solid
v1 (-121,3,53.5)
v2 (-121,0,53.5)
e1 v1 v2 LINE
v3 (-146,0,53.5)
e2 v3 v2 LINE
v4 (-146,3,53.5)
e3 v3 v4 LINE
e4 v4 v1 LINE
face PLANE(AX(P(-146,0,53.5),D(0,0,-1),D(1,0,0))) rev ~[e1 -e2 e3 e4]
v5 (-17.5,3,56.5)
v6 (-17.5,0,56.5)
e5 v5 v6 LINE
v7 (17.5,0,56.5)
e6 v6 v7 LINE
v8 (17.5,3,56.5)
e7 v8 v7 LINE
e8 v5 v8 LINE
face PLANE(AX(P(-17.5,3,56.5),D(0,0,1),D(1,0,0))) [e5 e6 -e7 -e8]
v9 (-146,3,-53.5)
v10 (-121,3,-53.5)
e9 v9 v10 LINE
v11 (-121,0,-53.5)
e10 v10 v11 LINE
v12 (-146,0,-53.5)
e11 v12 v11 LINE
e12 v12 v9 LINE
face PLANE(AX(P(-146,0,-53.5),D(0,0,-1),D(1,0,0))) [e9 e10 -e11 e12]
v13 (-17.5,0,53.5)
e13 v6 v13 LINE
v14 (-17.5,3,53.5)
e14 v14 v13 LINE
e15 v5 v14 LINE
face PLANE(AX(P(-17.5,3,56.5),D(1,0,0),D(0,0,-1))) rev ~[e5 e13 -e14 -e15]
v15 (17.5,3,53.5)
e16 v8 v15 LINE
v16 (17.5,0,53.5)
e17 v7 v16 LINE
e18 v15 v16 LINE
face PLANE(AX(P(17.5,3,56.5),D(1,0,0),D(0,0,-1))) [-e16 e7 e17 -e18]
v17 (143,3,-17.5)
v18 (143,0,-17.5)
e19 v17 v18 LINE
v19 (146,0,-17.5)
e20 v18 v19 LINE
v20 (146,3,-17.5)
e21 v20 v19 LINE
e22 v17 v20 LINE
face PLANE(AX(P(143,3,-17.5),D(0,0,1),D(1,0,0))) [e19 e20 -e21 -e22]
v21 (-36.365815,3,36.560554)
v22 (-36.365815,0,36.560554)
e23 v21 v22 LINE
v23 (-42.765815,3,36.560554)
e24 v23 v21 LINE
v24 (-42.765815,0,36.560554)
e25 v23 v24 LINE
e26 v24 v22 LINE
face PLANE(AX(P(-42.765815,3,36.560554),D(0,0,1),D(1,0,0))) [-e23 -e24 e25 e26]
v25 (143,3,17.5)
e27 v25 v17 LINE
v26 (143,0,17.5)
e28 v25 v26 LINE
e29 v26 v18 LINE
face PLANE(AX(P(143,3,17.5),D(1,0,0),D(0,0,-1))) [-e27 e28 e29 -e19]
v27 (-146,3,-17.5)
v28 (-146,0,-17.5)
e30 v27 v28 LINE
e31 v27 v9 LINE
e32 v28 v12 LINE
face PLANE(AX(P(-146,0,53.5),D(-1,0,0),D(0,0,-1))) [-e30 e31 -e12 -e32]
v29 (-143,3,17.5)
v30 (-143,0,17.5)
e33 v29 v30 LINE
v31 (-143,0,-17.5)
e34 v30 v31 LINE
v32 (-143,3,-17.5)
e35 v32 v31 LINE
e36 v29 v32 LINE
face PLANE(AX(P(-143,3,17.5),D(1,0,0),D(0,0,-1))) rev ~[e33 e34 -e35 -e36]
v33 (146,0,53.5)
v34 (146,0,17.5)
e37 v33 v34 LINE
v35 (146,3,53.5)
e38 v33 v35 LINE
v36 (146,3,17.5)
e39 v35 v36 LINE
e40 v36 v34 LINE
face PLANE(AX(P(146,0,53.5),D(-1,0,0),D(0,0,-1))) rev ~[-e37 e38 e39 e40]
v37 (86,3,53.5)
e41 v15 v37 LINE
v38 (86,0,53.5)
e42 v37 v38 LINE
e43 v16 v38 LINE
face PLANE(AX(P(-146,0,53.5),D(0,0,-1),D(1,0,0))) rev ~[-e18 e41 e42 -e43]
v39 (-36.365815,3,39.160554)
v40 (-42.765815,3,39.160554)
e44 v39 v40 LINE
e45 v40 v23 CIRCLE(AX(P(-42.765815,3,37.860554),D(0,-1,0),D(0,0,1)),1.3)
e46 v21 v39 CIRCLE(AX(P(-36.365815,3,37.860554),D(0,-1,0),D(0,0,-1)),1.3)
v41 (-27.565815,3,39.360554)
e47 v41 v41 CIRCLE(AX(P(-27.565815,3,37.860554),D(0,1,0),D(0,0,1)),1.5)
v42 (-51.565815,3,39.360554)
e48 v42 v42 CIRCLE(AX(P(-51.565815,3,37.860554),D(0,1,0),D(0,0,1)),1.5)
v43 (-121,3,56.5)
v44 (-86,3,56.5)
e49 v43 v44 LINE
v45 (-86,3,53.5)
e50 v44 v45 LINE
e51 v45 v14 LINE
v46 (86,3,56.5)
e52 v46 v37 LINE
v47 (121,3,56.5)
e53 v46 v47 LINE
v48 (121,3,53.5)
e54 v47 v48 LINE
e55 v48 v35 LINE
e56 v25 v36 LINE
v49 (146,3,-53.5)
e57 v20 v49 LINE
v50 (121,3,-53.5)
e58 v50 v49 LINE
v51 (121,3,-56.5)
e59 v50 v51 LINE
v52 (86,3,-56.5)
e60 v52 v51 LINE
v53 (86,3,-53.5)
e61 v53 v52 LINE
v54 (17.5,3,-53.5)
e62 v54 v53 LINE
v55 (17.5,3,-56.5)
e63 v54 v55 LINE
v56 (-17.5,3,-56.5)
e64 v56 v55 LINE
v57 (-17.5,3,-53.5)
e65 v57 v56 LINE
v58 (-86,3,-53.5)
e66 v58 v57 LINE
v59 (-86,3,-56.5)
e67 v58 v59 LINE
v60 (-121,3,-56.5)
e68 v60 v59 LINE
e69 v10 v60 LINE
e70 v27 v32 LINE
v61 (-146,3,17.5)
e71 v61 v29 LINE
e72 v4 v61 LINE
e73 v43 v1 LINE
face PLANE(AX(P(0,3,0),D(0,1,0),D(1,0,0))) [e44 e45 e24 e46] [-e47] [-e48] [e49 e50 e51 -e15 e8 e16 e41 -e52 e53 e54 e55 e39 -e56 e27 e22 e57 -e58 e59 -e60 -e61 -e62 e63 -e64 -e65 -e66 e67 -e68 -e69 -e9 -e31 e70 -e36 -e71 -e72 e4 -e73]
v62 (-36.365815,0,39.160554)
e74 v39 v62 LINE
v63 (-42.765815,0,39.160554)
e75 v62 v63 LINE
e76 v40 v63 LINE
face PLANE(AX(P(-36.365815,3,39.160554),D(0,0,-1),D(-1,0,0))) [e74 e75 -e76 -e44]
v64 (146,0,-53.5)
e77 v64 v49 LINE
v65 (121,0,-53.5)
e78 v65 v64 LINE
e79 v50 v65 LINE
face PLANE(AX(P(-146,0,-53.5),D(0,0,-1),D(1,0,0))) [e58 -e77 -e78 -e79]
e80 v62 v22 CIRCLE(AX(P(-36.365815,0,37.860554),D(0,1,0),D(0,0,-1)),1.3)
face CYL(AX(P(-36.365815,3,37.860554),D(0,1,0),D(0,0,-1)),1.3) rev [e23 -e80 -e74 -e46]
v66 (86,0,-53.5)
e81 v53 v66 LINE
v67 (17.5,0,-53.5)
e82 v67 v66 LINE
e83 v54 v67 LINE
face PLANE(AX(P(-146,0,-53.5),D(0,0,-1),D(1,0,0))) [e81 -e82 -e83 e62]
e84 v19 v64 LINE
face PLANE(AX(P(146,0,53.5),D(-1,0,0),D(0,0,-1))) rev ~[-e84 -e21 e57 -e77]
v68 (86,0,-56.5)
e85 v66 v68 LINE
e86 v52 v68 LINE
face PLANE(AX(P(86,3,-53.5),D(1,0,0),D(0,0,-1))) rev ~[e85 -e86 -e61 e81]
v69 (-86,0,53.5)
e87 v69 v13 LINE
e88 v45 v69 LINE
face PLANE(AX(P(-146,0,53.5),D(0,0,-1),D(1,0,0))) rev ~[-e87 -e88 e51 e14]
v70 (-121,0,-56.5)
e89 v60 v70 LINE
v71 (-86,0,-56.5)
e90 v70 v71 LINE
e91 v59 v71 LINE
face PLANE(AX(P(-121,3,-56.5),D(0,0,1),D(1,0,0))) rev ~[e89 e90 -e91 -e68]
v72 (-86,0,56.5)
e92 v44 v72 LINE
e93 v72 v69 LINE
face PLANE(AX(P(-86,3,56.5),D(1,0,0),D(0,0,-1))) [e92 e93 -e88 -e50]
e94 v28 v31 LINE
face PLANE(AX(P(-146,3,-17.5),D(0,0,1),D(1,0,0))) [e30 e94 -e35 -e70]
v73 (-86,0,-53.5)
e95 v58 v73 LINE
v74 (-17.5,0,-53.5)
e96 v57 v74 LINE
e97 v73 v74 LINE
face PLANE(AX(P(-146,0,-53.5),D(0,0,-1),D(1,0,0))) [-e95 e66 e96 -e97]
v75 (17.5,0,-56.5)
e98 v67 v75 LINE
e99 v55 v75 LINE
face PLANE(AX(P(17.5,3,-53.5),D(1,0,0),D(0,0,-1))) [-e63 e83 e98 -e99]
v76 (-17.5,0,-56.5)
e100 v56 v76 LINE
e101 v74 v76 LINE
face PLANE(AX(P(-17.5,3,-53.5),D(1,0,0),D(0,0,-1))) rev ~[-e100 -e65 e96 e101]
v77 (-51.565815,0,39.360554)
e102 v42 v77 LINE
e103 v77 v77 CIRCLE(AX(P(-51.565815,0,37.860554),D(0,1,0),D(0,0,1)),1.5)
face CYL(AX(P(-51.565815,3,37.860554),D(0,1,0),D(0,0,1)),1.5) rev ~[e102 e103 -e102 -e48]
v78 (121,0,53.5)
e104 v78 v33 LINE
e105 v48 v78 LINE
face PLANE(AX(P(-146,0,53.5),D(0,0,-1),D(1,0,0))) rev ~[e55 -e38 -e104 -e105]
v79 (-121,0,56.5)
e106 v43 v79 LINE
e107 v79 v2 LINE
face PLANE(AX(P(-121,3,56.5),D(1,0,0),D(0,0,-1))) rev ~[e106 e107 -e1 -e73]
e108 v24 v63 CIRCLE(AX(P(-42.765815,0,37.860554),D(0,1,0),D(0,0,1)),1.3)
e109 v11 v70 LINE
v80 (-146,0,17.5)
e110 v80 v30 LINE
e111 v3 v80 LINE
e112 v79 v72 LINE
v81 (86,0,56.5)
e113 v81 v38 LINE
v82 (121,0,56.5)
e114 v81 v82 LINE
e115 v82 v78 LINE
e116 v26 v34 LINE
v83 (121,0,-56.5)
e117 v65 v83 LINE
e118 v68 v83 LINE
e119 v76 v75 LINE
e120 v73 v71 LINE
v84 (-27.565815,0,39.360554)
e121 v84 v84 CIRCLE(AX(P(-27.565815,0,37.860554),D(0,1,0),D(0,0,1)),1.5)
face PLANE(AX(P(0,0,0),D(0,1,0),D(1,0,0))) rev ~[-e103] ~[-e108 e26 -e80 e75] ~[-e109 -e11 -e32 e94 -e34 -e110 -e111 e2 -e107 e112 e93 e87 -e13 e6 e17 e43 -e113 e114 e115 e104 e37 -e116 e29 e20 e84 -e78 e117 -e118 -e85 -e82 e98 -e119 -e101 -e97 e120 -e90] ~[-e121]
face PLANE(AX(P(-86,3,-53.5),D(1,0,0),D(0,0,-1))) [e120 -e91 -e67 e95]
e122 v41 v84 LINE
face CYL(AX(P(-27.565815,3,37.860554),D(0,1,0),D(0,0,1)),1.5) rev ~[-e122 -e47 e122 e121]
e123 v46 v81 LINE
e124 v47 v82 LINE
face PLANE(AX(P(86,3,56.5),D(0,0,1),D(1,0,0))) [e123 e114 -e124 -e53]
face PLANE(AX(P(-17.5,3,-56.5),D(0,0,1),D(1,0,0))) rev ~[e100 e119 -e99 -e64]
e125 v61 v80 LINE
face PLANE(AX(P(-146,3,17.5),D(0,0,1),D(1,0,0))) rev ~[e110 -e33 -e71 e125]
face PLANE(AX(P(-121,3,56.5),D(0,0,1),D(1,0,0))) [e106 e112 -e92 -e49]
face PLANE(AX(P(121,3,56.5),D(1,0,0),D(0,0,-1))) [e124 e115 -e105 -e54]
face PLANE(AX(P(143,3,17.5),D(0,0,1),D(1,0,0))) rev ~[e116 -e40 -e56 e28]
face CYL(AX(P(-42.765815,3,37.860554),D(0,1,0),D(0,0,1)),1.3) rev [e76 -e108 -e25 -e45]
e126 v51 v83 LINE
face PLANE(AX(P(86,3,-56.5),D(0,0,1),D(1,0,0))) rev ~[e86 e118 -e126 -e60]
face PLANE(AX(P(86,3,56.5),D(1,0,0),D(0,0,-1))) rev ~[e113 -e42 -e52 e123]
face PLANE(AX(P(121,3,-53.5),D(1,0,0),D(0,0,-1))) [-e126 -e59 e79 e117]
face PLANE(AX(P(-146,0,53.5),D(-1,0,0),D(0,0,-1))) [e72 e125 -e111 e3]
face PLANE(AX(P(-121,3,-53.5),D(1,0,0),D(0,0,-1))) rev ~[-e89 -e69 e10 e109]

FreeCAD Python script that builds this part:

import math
import FreeCAD as App
import Part
import Sketcher
from FreeCAD import Vector
Q = App.Units.Quantity

doc = App.newDocument("Part")
body = doc.addObject("PartDesign::Body", "Body")

# Sketch on XZ plane
sketch1 = body.newObject("Sketcher::SketchObject", "Sketch")
sketch1.AttachmentSupport = (doc.getObject("XZ_Plane"), [""])
sketch1.MapMode = "FlatFace"
sketch1.addGeometry(Part.LineSegment(Vector(-146, -54, 0), Vector(-146, 54, 0)), False)
sketch1.addGeometry(Part.LineSegment(Vector(-146, 54, 0), Vector(146, 54, 0)), False)
sketch1.addGeometry(Part.LineSegment(Vector(146, 54, 0), Vector(146, -54, 0)), False)
sketch1.addGeometry(Part.LineSegment(Vector(146, -54, 0), Vector(-146, -54, 0)), False)
sketch1.addConstraint(Sketcher.Constraint("Coincident", 0, 2, 1, 1))
sketch1.addConstraint(Sketcher.Constraint("Coincident", 1, 2, 2, 1))
sketch1.addConstraint(Sketcher.Constraint("Coincident", 2, 2, 3, 1))
sketch1.addConstraint(Sketcher.Constraint("Coincident", 3, 2, 0, 1))
sketch1.addConstraint(Sketcher.Constraint("Vertical", 0))
sketch1.addConstraint(Sketcher.Constraint("Horizontal", 1))
sketch1.addConstraint(Sketcher.Constraint("Vertical", 2))
sketch1.addConstraint(Sketcher.Constraint("Horizontal", 3))
sketch1.addConstraint(Sketcher.Constraint("Symmetric", 0, 2, 2, 2, -1, 1))
sketch1.addConstraint(Sketcher.Constraint("DistanceX", 1, 1, 1, 2, Q("292 mm")))
sketch1.addConstraint(Sketcher.Constraint("DistanceY", 0, 1, 0, 2, Q("107 mm")))
pad1 = body.newObject("PartDesign::Pad", "Pad")
pad1.Profile = sketch1
pad1.Length = 3
pad1.Reversed = True

# Sketch on XZ plane
sketch2 = body.newObject("Sketcher::SketchObject", "Sketch001")
sketch2.AttachmentSupport = (doc.getObject("XZ_Plane"), [""])
sketch2.MapMode = "FlatFace"
sketch2.AttachmentOffset = App.Placement(Vector(0, 0, -3), App.Rotation())
sketch2.addGeometry(Part.LineSegment(Vector(143, -17.5, 0), Vector(143, 17.5, 0)), False)
sketch2.addGeometry(Part.LineSegment(Vector(143, 17.5, 0), Vector(146, 17.5, 0)), False)
sketch2.addGeometry(Part.LineSegment(Vector(146, 17.5, 0), Vector(146, -17.5, 0)), False)
sketch2.addGeometry(Part.LineSegment(Vector(146, -17.5, 0), Vector(143, -17.5, 0)), False)
sketch2.addGeometry(Part.LineSegment(Vector(-146, -17.5, 0), Vector(-146, 17.5, 0)), False)
sketch2.addGeometry(Part.LineSegment(Vector(-146, 17.5, 0), Vector(-143, 17.5, 0)), False)
sketch2.addGeometry(Part.LineSegment(Vector(-143, 17.5, 0), Vector(-143, -17.5, 0)), False)
sketch2.addGeometry(Part.LineSegment(Vector(-143, -17.5, 0), Vector(-146, -17.5, 0)), False)
sketch2.addConstraint(Sketcher.Constraint("Coincident", 0, 2, 1, 1))
sketch2.addConstraint(Sketcher.Constraint("Coincident", 1, 2, 2, 1))
sketch2.addConstraint(Sketcher.Constraint("Coincident", 2, 2, 3, 1))
sketch2.addConstraint(Sketcher.Constraint("Coincident", 3, 2, 0, 1))
sketch2.addConstraint(Sketcher.Constraint("Coincident", 4, 2, 5, 1))
sketch2.addConstraint(Sketcher.Constraint("Coincident", 5, 2, 6, 1))
sketch2.addConstraint(Sketcher.Constraint("Coincident", 6, 2, 7, 1))
sketch2.addConstraint(Sketcher.Constraint("Coincident", 7, 2, 4, 1))
sketch2.addConstraint(Sketcher.Constraint("Vertical", 0))
sketch2.addConstraint(Sketcher.Constraint("Horizontal", 1))
sketch2.addConstraint(Sketcher.Constraint("Vertical", 2))
sketch2.addConstraint(Sketcher.Constraint("Horizontal", 3))
sketch2.addConstraint(Sketcher.Constraint("Vertical", 4))
sketch2.addConstraint(Sketcher.Constraint("Horizontal", 5))
sketch2.addConstraint(Sketcher.Constraint("Vertical", 6))
sketch2.addConstraint(Sketcher.Constraint("Horizontal", 7))
sketch2.addConstraint(Sketcher.Constraint("Symmetric", 2, 2, 4, 2, -1, 1))
sketch2.addConstraint(Sketcher.Constraint("Symmetric", 0, 2, 6, 2, -1, 1))
sketch2.addConstraint(Sketcher.Constraint("Horizontal", 1, 2, 4, 2))
sketch2.addConstraint(Sketcher.Constraint("DistanceX", 1, 1, 1, 2, Q("3 mm")))
sketch2.addConstraint(Sketcher.Constraint("DistanceY", 0, 1, 0, 2, Q("35 mm")))
sketch2.addConstraint(Sketcher.Constraint("DistanceX", -1, 1, 0, 2, Q("143 mm")))
pocket1 = body.newObject("PartDesign::Pocket", "Pocket")
pocket1.Profile = sketch2
pocket1.Length = 3
pocket1.Reversed = True

# Sketch on XZ plane
sketch3 = body.newObject("Sketcher::SketchObject", "Sketch002")
sketch3.AttachmentSupport = (doc.getObject("XZ_Plane"), [""])
sketch3.MapMode = "FlatFace"
sketch3.AttachmentOffset = App.Placement(Vector(0, 0, -3), App.Rotation())
sketch3.addGeometry(Part.LineSegment(Vector(-17.5, 53.5, 0), Vector(-17.5, 56.5, 0)), False)
sketch3.addGeometry(Part.LineSegment(Vector(-17.5, 56.5, 0), Vector(17.5, 56.5, 0)), False)
sketch3.addGeometry(Part.LineSegment(Vector(17.5, 56.5, 0), Vector(17.5, 53.5, 0)), False)
sketch3.addGeometry(Part.LineSegment(Vector(17.5, 53.5, 0), Vector(-17.5, 53.5, 0)), False)
sketch3.addGeometry(Part.LineSegment(Vector(-17.5, -56.5, 0), Vector(-17.5, -53.5, 0)), False)
sketch3.addGeometry(Part.LineSegment(Vector(-17.5, -53.5, 0), Vector(17.5, -53.5, 0)), False)
sketch3.addGeometry(Part.LineSegment(Vector(17.5, -53.5, 0), Vector(17.5, -56.5, 0)), False)
sketch3.addGeometry(Part.LineSegment(Vector(17.5, -56.5, 0), Vector(-17.5, -56.5, 0)), False)
sketch3.addConstraint(Sketcher.Constraint("Coincident", 0, 2, 1, 1))
sketch3.addConstraint(Sketcher.Constraint("Coincident", 1, 2, 2, 1))
sketch3.addConstraint(Sketcher.Constraint("Coincident", 2, 2, 3, 1))
sketch3.addConstraint(Sketcher.Constraint("Coincident", 3, 2, 0, 1))
sketch3.addConstraint(Sketcher.Constraint("Coincident", 4, 2, 5, 1))
sketch3.addConstraint(Sketcher.Constraint("Coincident", 5, 2, 6, 1))
sketch3.addConstraint(Sketcher.Constraint("Coincident", 6, 2, 7, 1))
sketch3.addConstraint(Sketcher.Constraint("Coincident", 7, 2, 4, 1))
sketch3.addConstraint(Sketcher.Constraint("Vertical", 0))
sketch3.addConstraint(Sketcher.Constraint("Horizontal", 1))
sketch3.addConstraint(Sketcher.Constraint("Vertical", 2))
sketch3.addConstraint(Sketcher.Constraint("Horizontal", 3))
sketch3.addConstraint(Sketcher.Constraint("Vertical", 4))
sketch3.addConstraint(Sketcher.Constraint("Horizontal", 5))
sketch3.addConstraint(Sketcher.Constraint("Vertical", 6))
sketch3.addConstraint(Sketcher.Constraint("Horizontal", 7))
sketch3.addConstraint(Sketcher.Constraint("Symmetric", 2, 2, 4, 2, -1, 1))
sketch3.addConstraint(Sketcher.Constraint("Symmetric", 0, 2, 6, 2, -1, 1))
sketch3.addConstraint(Sketcher.Constraint("Vertical", 3, 2, 4, 2))
sketch3.addConstraint(Sketcher.Constraint("DistanceX", 1, 1, 1, 2, Q("35 mm")))
sketch3.addConstraint(Sketcher.Constraint("DistanceY", 0, 1, 0, 2, Q("3 mm")))
sketch3.addConstraint(Sketcher.Constraint("DistanceY", 4, 2, 3, 2, Q("107 mm")))
pad2 = body.newObject("PartDesign::Pad", "Pad001")
pad2.Profile = sketch3
pad2.Length = 3

# Sketch on XZ plane
sketch4 = body.newObject("Sketcher::SketchObject", "Sketch003")
sketch4.AttachmentSupport = (doc.getObject("XZ_Plane"), [""])
sketch4.MapMode = "FlatFace"
sketch4.AttachmentOffset = App.Placement(Vector(0, 0, -3), App.Rotation())
sketch4.addGeometry(Part.LineSegment(Vector(-121, 53.5, 0), Vector(-121, 56.5, 0)), False)
sketch4.addGeometry(Part.LineSegment(Vector(-121, 56.5, 0), Vector(-86, 56.5, 0)), False)
sketch4.addGeometry(Part.LineSegment(Vector(-86, 56.5, 0), Vector(-86, 53.5, 0)), False)
sketch4.addGeometry(Part.LineSegment(Vector(-86, 53.5, 0), Vector(-121, 53.5, 0)), False)
sketch4.addGeometry(Part.LineSegment(Vector(-121, -56.5, 0), Vector(-121, -53.5, 0)), False)
sketch4.addGeometry(Part.LineSegment(Vector(-121, -53.5, 0), Vector(-86, -53.5, 0)), False)
sketch4.addGeometry(Part.LineSegment(Vector(-86, -53.5, 0), Vector(-86, -56.5, 0)), False)
sketch4.addGeometry(Part.LineSegment(Vector(-86, -56.5, 0), Vector(-121, -56.5, 0)), False)
sketch4.addGeometry(Part.LineSegment(Vector(86, -56.5, 0), Vector(86, -53.5, 0)), False)
sketch4.addGeometry(Part.LineSegment(Vector(86, -53.5, 0), Vector(121, -53.5, 0)), False)
sketch4.addGeometry(Part.LineSegment(Vector(121, -53.5, 0), Vector(121, -56.5, 0)), False)
sketch4.addGeometry(Part.LineSegment(Vector(121, -56.5, 0), Vector(86, -56.5, 0)), False)
sketch4.addGeometry(Part.LineSegment(Vector(86, 53.5, 0), Vector(86, 56.5, 0)), False)
sketch4.addGeometry(Part.LineSegment(Vector(86, 56.5, 0), Vector(121, 56.5, 0)), False)
sketch4.addGeometry(Part.LineSegment(Vector(121, 56.5, 0), Vector(121, 53.5, 0)), False)
sketch4.addGeometry(Part.LineSegment(Vector(121, 53.5, 0), Vector(86, 53.5, 0)), False)
sketch4.addConstraint(Sketcher.Constraint("Coincident", 0, 2, 1, 1))
sketch4.addConstraint(Sketcher.Constraint("Coincident", 1, 2, 2, 1))
sketch4.addConstraint(Sketcher.Constraint("Coincident", 2, 2, 3, 1))
sketch4.addConstraint(Sketcher.Constraint("Coincident", 3, 2, 0, 1))
sketch4.addConstraint(Sketcher.Constraint("Coincident", 4, 2, 5, 1))
sketch4.addConstraint(Sketcher.Constraint("Coincident", 5, 2, 6, 1))
sketch4.addConstraint(Sketcher.Constraint("Coincident", 6, 2, 7, 1))
sketch4.addConstraint(Sketcher.Constraint("Coincident", 7, 2, 4, 1))
sketch4.addConstraint(Sketcher.Constraint("Coincident", 8, 2, 9, 1))
sketch4.addConstraint(Sketcher.Constraint("Coincident", 9, 2, 10, 1))
sketch4.addConstraint(Sketcher.Constraint("Coincident", 10, 2, 11, 1))
sketch4.addConstraint(Sketcher.Constraint("Coincident", 11, 2, 8, 1))
sketch4.addConstraint(Sketcher.Constraint("Coincident", 12, 2, 13, 1))
sketch4.addConstraint(Sketcher.Constraint("Coincident", 13, 2, 14, 1))
sketch4.addConstraint(Sketcher.Constraint("Coincident", 14, 2, 15, 1))
sketch4.addConstraint(Sketcher.Constraint("Coincident", 15, 2, 12, 1))
sketch4.addConstraint(Sketcher.Constraint("Vertical", 0))
sketch4.addConstraint(Sketcher.Constraint("Horizontal", 1))
sketch4.addConstraint(Sketcher.Constraint("Vertical", 2))
sketch4.addConstraint(Sketcher.Constraint("Horizontal", 3))
sketch4.addConstraint(Sketcher.Constraint("Vertical", 4))
sketch4.addConstraint(Sketcher.Constraint("Horizontal", 5))
sketch4.addConstraint(Sketcher.Constraint("Vertical", 6))
sketch4.addConstraint(Sketcher.Constraint("Horizontal", 7))
sketch4.addConstraint(Sketcher.Constraint("Vertical", 8))
sketch4.addConstraint(Sketcher.Constraint("Horizontal", 9))
sketch4.addConstraint(Sketcher.Constraint("Vertical", 10))
sketch4.addConstraint(Sketcher.Constraint("Horizontal", 11))
sketch4.addConstraint(Sketcher.Constraint("Vertical", 12))
sketch4.addConstraint(Sketcher.Constraint("Horizontal", 13))
sketch4.addConstraint(Sketcher.Constraint("Vertical", 14))
sketch4.addConstraint(Sketcher.Constraint("Horizontal", 15))
sketch4.addConstraint(Sketcher.Constraint("Symmetric", 2, 2, 8, 2, -1, 1))
sketch4.addConstraint(Sketcher.Constraint("Symmetric", 0, 2, 10, 2, -1, 1))
sketch4.addConstraint(Sketcher.Constraint("Symmetric", 6, 2, 12, 2, -1, 1))
sketch4.addConstraint(Sketcher.Constraint("Symmetric", 4, 2, 14, 2, -1, 1))
sketch4.addConstraint(Sketcher.Constraint("Symmetric", 5, 2, 8, 2, -2))
sketch4.addConstraint(Sketcher.Constraint("Symmetric", 7, 2, 10, 2, -2))
sketch4.addConstraint(Sketcher.Constraint("DistanceX", 1, 1, 1, 2, Q("35 mm")))
sketch4.addConstraint(Sketcher.Constraint("DistanceY", 0, 1, 0, 2, Q("3 mm")))
sketch4.addConstraint(Sketcher.Constraint("DistanceX", 0, 2, -1, 1, Q("121 mm")))
sketch4.addConstraint(Sketcher.Constraint("DistanceY", 4, 2, 3, 2, Q("107 mm")))
pad3 = body.newObject("PartDesign::Pad", "Pad002")
pad3.Profile = sketch4
pad3.Length = 3

# Sketch on XZ plane
sketch5 = body.newObject("Sketcher::SketchObject", "Sketch004")
sketch5.AttachmentSupport = (doc.getObject("XZ_Plane"), [""])
sketch5.MapMode = "FlatFace"
sketch5.AttachmentOffset = App.Placement(Vector(0, 0, -3), App.Rotation())
sketch5.addGeometry(Part.Circle(Vector(-27.6, 37.9, 0), Vector(0, 0, 1), 1.5), False)
sketch5.addGeometry(Part.Circle(Vector(-51.6, 37.9, 0), Vector(0, 0, 1), 1.5), False)
sketch5.addGeometry(Part.LineSegment(Vector(-36.4, 36.6, 0), Vector(-42.8, 36.6, 0)), False)
sketch5.addGeometry(Part.ArcOfCircle(Part.Circle(Vector(-42.8, 37.9, 0), Vector(0, 0, 1), 1.3), math.radians(90), math.radians(270)), False)
sketch5.addGeometry(Part.LineSegment(Vector(-42.8, 39.2, 0), Vector(-36.4, 39.2, 0)), False)
sketch5.addGeometry(Part.ArcOfCircle(Part.Circle(Vector(-36.4, 37.9, 0), Vector(0, 0, 1), 1.3), math.radians(-90), math.radians(90)), False)
sketch5.addConstraint(Sketcher.Constraint("Tangent", 2, 2, 3, 2))
sketch5.addConstraint(Sketcher.Constraint("Tangent", 3, 1, 4, 1))
sketch5.addConstraint(Sketcher.Constraint("Tangent", 4, 2, 5, 2))
sketch5.addConstraint(Sketcher.Constraint("Tangent", 5, 1, 2, 1))
sketch5.addConstraint(Sketcher.Constraint("Horizontal", 2))
sketch5.addConstraint(Sketcher.Constraint("Horizontal", 4))
sketch5.addConstraint(Sketcher.Constraint("Equal", 0, 1))
sketch5.addConstraint(Sketcher.Constraint("Horizontal", 0, 3, 1, 3))
sketch5.addConstraint(Sketcher.Constraint("Horizontal", 1, 3, 3, 3))
sketch5.addConstraint(Sketcher.Constraint("Diameter", 0, Q("3 mm")))
sketch5.addConstraint(Sketcher.Constraint("Radius", 3, Q("1.3 mm")))
sketch5.addConstraint(Sketcher.Constraint("DistanceX", 2, 2, 2, 1, Q("6.4 mm")))
sketch5.addConstraint(Sketcher.Constraint("DistanceX", 1, 3, 0, 3, Q("24 mm")))
sketch5.addConstraint(Sketcher.Constraint("DistanceX", 1, 3, 3, 3, Q("8.8 mm")))
sketch5.addConstraint(Sketcher.Constraint("DistanceX", 0, 3, -1, 1, Q("27.565815 mm")))
sketch5.addConstraint(Sketcher.Constraint("DistanceY", -1, 1, 0, 3, Q("37.860554 mm")))
pocket2 = body.newObject("PartDesign::Pocket", "Pocket001")
pocket2.Profile = sketch5
pocket2.Length = 10
pocket2.Reversed = True

doc.recompute()
